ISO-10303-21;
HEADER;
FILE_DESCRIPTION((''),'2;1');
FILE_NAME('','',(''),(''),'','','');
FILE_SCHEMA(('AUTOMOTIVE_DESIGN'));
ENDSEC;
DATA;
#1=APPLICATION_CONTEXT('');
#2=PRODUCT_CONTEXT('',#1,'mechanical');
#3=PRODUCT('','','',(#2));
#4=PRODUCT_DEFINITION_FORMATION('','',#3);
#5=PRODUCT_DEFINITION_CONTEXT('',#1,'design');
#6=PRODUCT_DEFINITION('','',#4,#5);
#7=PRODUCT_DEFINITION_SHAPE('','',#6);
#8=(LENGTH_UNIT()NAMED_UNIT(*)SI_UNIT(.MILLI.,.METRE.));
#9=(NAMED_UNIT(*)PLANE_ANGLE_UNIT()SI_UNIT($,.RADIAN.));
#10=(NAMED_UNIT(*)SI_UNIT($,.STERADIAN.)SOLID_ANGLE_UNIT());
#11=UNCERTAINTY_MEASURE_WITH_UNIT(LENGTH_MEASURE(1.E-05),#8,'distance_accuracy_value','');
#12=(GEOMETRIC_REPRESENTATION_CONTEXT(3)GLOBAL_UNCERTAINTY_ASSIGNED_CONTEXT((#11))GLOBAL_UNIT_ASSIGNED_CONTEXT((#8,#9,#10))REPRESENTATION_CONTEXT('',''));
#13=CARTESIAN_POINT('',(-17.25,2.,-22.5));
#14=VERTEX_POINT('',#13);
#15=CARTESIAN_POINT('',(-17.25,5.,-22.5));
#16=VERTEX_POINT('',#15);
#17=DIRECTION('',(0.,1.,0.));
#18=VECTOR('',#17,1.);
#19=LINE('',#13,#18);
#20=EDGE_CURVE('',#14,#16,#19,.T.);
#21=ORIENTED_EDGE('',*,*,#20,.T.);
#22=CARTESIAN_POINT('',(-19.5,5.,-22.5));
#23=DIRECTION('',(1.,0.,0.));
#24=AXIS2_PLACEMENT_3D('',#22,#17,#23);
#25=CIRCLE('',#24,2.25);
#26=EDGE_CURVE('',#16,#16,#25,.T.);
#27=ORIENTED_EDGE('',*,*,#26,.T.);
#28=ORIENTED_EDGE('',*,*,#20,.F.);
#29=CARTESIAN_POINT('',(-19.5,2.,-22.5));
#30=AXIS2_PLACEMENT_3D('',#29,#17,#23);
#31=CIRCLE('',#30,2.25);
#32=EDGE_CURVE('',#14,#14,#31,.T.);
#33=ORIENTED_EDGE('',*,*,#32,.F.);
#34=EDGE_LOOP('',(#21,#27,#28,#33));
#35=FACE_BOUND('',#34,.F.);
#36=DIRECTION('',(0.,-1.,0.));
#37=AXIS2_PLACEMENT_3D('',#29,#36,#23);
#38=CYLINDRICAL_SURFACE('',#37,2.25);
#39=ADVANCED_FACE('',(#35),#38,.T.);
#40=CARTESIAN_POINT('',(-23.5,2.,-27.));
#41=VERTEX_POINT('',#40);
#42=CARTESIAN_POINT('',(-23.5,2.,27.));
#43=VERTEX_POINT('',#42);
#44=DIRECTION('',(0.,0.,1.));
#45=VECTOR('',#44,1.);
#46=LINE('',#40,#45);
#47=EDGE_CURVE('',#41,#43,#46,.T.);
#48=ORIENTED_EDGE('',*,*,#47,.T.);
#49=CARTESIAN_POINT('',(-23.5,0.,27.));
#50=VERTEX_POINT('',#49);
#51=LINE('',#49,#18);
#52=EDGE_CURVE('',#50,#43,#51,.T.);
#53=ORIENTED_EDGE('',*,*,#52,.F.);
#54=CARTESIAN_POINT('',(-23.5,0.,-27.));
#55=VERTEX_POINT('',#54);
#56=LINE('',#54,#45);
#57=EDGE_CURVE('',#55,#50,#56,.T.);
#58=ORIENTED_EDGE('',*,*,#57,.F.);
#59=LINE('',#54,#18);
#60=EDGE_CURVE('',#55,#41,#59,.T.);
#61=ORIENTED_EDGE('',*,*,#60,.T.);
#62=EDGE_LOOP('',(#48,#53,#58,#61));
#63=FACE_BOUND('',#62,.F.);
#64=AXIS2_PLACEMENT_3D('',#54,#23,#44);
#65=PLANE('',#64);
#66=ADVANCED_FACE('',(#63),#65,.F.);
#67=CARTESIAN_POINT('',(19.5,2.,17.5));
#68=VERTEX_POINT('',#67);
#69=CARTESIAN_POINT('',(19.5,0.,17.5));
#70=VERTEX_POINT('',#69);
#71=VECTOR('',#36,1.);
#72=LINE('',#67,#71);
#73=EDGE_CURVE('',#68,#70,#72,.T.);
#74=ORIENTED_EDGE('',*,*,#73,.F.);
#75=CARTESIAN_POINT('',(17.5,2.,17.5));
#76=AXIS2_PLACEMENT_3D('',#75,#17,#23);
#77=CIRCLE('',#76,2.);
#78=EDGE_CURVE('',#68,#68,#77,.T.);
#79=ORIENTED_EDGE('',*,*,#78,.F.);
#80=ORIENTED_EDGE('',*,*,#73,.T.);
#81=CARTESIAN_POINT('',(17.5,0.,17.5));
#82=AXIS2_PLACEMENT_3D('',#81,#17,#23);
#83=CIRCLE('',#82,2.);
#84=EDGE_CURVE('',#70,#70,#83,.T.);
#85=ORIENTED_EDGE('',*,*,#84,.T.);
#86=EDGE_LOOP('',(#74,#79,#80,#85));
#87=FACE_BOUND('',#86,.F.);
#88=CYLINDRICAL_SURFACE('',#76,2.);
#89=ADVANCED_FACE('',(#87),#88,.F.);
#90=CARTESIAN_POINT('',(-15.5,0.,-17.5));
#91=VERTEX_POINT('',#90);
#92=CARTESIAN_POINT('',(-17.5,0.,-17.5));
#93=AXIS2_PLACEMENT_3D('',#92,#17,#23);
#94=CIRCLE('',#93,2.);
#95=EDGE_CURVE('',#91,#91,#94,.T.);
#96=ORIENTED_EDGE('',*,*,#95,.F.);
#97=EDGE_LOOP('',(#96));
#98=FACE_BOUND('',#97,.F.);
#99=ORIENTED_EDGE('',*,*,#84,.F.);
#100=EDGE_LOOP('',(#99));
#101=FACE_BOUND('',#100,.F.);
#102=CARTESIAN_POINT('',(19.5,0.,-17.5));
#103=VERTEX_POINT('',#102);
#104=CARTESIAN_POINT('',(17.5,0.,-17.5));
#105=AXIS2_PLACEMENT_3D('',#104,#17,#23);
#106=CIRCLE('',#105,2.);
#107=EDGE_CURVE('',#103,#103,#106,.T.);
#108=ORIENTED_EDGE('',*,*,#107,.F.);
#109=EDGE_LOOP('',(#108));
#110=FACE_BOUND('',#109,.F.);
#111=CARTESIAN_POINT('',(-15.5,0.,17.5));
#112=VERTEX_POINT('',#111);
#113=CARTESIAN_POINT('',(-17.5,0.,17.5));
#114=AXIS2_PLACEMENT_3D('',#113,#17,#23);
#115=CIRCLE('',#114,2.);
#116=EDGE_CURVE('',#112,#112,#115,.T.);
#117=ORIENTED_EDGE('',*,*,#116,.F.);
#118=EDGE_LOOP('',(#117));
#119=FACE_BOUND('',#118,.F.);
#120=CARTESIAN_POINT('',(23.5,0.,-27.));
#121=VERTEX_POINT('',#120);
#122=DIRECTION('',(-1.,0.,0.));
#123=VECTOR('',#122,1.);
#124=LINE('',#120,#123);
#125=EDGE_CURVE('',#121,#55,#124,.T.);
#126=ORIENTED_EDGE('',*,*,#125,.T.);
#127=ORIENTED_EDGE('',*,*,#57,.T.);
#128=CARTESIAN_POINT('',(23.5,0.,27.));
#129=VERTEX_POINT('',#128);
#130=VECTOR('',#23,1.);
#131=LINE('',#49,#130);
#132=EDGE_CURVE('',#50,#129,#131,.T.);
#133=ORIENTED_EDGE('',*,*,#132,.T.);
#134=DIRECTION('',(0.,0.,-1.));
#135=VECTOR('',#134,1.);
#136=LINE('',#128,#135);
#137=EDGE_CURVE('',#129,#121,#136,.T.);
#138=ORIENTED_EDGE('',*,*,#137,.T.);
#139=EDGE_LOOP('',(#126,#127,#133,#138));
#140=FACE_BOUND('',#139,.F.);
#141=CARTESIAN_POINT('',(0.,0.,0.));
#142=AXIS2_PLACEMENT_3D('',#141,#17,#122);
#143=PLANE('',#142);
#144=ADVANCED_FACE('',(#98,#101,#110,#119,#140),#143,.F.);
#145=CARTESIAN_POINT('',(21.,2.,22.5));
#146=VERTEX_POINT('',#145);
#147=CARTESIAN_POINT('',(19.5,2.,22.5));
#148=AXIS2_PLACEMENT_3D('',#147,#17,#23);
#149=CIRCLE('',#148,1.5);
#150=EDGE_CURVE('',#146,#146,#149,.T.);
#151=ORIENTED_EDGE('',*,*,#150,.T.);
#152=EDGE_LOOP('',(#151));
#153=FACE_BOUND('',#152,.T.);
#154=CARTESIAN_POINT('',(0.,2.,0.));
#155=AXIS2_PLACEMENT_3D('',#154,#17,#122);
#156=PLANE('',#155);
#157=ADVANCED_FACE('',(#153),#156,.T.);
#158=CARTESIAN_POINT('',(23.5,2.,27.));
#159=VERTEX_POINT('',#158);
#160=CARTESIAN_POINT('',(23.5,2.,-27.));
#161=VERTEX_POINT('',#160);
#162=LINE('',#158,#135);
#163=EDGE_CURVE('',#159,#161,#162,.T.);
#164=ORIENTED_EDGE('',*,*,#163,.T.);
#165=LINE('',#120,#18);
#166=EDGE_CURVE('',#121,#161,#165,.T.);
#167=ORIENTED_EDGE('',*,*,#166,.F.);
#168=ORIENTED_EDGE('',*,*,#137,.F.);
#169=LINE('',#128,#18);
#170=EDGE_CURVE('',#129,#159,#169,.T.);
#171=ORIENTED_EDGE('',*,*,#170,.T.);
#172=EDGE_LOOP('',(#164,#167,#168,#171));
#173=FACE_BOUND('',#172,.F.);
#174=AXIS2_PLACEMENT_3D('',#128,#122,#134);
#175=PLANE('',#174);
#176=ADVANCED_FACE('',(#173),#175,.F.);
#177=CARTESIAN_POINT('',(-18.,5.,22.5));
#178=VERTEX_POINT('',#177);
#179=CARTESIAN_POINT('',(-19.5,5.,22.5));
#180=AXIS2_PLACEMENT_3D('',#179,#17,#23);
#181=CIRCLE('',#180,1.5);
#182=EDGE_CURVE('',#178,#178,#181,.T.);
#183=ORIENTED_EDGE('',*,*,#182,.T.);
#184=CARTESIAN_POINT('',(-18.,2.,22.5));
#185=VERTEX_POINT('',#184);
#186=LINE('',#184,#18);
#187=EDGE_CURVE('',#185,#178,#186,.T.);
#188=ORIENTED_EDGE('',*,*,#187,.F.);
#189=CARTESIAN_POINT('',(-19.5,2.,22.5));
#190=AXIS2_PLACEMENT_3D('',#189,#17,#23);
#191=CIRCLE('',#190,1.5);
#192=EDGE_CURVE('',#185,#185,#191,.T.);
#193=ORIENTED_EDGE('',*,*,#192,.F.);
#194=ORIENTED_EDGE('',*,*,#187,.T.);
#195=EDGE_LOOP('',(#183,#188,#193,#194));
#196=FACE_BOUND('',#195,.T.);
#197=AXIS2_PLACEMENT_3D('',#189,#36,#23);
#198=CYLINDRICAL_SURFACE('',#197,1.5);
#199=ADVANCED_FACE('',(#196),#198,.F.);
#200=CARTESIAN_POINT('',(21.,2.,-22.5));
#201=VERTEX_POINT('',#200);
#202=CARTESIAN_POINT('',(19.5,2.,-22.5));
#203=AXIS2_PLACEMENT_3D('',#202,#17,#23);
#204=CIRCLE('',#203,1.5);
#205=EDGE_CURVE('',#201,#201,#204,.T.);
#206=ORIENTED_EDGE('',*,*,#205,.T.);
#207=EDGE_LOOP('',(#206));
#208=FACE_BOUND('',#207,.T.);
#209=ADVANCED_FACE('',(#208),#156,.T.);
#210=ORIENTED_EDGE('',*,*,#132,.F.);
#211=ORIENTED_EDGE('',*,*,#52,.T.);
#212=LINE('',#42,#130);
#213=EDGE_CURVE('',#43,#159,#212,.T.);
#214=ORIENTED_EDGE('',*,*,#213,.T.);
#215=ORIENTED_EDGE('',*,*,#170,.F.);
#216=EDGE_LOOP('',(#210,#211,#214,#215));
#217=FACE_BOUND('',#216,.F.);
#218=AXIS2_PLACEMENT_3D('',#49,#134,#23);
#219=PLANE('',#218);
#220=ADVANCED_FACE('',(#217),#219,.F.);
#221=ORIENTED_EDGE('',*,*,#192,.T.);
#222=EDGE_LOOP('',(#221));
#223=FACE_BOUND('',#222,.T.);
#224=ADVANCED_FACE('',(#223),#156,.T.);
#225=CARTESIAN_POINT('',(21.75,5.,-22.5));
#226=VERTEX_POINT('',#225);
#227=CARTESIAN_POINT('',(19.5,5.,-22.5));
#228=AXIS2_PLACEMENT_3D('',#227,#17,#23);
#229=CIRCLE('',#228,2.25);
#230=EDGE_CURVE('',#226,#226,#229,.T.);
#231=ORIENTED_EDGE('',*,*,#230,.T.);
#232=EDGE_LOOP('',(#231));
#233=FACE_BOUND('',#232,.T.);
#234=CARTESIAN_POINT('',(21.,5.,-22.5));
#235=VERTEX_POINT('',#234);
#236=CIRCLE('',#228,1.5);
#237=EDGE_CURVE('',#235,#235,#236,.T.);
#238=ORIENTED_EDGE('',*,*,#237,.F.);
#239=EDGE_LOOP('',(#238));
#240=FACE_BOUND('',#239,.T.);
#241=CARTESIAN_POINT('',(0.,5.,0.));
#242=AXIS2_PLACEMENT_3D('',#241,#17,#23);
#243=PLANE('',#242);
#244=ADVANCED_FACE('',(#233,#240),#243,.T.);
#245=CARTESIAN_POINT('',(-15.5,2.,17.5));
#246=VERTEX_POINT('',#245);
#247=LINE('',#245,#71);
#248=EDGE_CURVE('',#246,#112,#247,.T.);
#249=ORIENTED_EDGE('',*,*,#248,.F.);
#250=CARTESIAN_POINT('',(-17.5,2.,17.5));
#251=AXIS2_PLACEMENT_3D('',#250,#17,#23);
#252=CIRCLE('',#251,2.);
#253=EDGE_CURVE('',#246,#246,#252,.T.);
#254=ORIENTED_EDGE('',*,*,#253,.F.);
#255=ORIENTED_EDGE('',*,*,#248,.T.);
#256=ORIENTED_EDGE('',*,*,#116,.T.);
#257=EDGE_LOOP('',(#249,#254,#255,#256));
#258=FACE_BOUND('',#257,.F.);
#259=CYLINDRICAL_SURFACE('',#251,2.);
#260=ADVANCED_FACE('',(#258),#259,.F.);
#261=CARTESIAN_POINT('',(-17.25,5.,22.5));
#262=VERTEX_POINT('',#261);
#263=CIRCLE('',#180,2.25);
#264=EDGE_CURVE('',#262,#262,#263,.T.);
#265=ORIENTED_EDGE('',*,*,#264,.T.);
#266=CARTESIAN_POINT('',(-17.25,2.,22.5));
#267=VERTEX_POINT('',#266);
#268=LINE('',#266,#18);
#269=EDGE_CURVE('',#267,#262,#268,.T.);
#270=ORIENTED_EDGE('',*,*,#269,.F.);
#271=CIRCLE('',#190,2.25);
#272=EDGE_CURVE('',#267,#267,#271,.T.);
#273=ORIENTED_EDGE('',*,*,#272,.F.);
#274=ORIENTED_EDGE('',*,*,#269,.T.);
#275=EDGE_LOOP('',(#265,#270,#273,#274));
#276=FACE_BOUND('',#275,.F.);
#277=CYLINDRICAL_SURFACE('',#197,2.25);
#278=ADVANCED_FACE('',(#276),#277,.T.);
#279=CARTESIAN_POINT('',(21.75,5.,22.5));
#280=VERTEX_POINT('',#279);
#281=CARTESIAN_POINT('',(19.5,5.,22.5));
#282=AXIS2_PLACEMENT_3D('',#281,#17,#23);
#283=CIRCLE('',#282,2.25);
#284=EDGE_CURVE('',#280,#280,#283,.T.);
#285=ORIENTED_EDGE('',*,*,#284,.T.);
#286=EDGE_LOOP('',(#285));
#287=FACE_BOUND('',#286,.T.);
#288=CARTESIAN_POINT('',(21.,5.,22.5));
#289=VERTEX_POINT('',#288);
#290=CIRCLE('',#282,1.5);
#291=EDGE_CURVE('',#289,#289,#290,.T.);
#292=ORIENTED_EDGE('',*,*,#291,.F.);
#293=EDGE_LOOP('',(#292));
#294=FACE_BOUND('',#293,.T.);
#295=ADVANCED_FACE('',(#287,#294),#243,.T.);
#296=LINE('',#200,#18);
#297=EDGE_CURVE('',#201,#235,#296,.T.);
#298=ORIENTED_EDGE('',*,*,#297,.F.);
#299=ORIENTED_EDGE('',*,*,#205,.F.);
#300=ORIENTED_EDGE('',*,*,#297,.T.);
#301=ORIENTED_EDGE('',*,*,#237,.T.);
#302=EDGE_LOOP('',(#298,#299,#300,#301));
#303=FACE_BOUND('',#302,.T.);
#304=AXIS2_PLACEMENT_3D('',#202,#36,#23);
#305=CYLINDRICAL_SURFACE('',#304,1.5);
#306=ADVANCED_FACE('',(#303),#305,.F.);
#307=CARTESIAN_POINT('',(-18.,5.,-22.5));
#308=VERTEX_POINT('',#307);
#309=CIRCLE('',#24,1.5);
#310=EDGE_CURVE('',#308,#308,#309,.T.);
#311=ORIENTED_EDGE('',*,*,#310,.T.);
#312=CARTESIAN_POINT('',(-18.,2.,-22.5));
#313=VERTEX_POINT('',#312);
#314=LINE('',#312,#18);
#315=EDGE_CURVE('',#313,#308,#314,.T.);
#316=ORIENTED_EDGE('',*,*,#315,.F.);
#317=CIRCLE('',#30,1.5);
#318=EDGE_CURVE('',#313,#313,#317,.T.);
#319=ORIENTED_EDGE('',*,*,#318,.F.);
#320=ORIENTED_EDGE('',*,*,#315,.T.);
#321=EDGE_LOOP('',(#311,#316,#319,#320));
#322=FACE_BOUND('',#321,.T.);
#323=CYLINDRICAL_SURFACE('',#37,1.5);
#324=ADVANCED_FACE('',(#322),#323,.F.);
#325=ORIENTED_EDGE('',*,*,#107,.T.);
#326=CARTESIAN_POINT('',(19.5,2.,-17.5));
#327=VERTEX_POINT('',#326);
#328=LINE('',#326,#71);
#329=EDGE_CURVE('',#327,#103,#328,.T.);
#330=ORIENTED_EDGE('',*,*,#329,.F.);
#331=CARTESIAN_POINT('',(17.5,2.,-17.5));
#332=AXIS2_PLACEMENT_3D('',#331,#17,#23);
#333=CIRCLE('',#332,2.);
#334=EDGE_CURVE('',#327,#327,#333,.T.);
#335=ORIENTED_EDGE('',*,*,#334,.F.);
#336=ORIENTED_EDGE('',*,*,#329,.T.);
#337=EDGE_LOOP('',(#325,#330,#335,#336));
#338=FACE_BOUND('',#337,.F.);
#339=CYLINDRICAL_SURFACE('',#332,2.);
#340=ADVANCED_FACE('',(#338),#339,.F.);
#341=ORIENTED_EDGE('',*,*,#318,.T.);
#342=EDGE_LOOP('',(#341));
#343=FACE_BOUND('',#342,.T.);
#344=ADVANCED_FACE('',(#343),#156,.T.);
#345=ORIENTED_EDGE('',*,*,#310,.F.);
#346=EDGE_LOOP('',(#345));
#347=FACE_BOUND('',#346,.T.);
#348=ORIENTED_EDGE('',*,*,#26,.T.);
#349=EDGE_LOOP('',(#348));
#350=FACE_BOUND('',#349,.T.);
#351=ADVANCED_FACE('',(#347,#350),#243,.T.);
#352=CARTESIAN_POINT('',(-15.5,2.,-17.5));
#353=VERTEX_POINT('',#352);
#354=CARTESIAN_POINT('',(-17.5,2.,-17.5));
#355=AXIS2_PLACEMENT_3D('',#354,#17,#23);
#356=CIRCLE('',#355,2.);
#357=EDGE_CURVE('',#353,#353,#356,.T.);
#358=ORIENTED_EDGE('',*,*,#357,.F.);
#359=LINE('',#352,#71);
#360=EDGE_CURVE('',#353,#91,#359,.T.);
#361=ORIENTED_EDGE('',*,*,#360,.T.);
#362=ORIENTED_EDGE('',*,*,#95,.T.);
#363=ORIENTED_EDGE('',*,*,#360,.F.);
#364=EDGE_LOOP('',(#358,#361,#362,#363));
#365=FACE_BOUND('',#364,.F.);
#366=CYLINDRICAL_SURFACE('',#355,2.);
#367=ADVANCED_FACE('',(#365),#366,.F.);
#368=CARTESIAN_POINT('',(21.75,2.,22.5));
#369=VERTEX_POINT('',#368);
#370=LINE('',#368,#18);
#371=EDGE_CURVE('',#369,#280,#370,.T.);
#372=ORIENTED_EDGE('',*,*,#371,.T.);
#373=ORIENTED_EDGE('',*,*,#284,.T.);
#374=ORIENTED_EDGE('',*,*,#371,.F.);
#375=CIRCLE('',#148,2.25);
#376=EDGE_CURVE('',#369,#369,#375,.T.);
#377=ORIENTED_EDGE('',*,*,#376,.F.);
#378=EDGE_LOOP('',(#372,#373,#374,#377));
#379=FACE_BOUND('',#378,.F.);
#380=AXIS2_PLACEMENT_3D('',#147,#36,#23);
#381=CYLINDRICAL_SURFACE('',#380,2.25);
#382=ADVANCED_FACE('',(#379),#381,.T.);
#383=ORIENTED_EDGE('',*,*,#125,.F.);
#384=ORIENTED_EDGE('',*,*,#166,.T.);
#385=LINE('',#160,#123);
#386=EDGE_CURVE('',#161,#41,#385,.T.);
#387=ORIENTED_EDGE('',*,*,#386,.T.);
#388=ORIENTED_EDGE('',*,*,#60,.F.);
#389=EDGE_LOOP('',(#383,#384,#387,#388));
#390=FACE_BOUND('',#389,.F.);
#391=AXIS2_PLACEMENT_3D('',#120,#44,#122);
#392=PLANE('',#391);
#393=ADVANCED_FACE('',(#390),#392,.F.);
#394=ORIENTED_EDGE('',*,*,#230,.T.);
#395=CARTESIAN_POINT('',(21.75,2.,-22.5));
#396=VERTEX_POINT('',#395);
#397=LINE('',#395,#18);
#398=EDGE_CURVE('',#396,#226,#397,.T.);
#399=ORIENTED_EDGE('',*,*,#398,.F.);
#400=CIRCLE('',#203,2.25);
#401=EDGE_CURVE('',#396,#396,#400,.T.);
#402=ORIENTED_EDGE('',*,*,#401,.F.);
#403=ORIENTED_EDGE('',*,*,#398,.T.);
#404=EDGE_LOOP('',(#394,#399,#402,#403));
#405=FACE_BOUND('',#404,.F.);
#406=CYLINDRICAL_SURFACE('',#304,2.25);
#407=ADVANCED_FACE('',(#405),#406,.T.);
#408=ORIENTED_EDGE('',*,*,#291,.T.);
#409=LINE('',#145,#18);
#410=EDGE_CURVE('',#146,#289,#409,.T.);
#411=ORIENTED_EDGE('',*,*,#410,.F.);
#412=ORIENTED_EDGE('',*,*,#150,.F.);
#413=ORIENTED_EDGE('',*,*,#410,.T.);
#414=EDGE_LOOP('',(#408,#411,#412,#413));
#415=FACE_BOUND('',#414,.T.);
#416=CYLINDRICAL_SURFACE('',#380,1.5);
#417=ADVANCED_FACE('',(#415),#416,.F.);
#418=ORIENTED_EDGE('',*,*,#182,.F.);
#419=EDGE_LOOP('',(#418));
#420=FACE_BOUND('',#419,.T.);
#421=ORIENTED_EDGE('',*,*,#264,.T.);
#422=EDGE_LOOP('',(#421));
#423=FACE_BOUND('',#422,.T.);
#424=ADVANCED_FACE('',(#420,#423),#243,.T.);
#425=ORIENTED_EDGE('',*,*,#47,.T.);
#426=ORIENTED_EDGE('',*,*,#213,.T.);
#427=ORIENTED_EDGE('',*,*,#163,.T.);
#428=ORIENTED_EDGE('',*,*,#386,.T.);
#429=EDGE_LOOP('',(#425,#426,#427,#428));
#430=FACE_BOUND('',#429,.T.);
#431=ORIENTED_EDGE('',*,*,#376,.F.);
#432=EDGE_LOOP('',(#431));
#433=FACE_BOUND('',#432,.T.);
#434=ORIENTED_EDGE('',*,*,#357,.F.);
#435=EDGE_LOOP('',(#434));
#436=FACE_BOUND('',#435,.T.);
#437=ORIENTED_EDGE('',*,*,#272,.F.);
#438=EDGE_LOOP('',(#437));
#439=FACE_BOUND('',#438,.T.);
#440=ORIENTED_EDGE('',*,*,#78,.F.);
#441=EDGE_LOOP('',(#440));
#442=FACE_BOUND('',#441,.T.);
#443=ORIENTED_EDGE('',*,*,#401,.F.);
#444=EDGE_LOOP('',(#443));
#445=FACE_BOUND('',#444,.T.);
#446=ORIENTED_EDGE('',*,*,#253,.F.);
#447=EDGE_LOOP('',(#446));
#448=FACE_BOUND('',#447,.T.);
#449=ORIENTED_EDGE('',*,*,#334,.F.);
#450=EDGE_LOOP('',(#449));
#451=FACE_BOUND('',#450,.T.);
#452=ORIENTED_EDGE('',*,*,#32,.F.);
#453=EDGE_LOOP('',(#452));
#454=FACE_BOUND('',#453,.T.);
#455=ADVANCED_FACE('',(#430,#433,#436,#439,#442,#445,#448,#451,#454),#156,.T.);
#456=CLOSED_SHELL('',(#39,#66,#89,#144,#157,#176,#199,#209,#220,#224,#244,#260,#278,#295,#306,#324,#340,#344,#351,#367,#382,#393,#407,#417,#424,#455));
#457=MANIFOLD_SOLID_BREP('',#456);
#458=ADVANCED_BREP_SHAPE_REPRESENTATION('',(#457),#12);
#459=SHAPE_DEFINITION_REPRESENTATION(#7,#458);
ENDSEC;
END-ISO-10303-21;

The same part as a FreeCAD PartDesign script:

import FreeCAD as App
import Part
import Sketcher
from FreeCAD import Vector
Q = App.Units.Quantity


def add_polygon(sketch, points):
    """Adds a closed chain of lines whose ends are joined by coincident constraints."""
    first, n = sketch.GeometryCount, len(points)
    for a, b in zip(points, points[1:] + points[:1]):
        sketch.addGeometry(Part.LineSegment(App.Vector(*a, 0), App.Vector(*b, 0)), False)
    for i in range(n):
        sketch.addConstraint(Sketcher.Constraint("Coincident", first + i, 2, first + (i + 1) % n, 1))

doc = App.newDocument("Part")
body = doc.addObject("PartDesign::Body", "Body")

# Sketch on XZ plane
sketch1 = doc.addObject("Sketcher::SketchObject", "Sketch")
body.addObject(sketch1)
sketch1.AttachmentSupport = (doc.XZ_Plane, [""])
sketch1.MapMode = "FlatFace"
add_polygon(sketch1, [(-24, -27), (-24, 27), (24, 27), (24, -27)])  # lines 0-3
sketch1.addConstraint([
    Sketcher.Constraint("Vertical", 0),
    Sketcher.Constraint("Horizontal", 1),
    Sketcher.Constraint("Vertical", 2),
    Sketcher.Constraint("Horizontal", 3),
    Sketcher.Constraint("Symmetric", 0, 2, 2, 2, -1, 1),
    Sketcher.Constraint("DistanceX", 1, 1, 1, 2, Q("47 mm")),
    Sketcher.Constraint("DistanceY", 0, 1, 0, 2, Q("54 mm")),
])
pad1 = doc.addObject("PartDesign::Pad", "Pad")
body.addObject(pad1)
pad1.Profile = sketch1
pad1.Length = 2
pad1.Reversed = True

# Sketch on XZ plane
sketch2 = doc.addObject("Sketcher::SketchObject", "Sketch001")
body.addObject(sketch2)
sketch2.AttachmentSupport = (doc.XZ_Plane, [""])
sketch2.MapMode = "FlatFace"
sketch2.AttachmentOffset = App.Placement(Vector(0, 0, -2), App.Rotation())
sketch2.addGeometry([
    Part.Circle(Vector(-19.5, -22.5, 0), Vector(0, 0, 1), 2.2),  # 0
    Part.Circle(Vector(-19.5, -22.5, 0), Vector(0, 0, 1), 1.5),  # 1
    Part.Circle(Vector(19.5, -22.5, 0), Vector(0, 0, 1), 2.2),  # 2
    Part.Circle(Vector(19.5, -22.5, 0), Vector(0, 0, 1), 1.5),  # 3
    Part.Circle(Vector(19.5, 22.5, 0), Vector(0, 0, 1), 2.2),  # 4
    Part.Circle(Vector(19.5, 22.5, 0), Vector(0, 0, 1), 1.5),  # 5
    Part.Circle(Vector(-19.5, 22.5, 0), Vector(0, 0, 1), 2.2),  # 6
    Part.Circle(Vector(-19.5, 22.5, 0), Vector(0, 0, 1), 1.5),  # 7
], False)
sketch2.addConstraint([
    Sketcher.Constraint("Coincident", 1, 3, 0, 3),
    Sketcher.Constraint("Coincident", 3, 3, 2, 3),
    Sketcher.Constraint("Coincident", 5, 3, 4, 3),
    Sketcher.Constraint("Coincident", 7, 3, 6, 3),
    Sketcher.Constraint("Equal", 0, 2),
    Sketcher.Constraint("Equal", 1, 3),
    Sketcher.Constraint("Equal", 2, 4),
    Sketcher.Constraint("Equal", 3, 5),
    Sketcher.Constraint("Equal", 4, 6),
    Sketcher.Constraint("Equal", 5, 7),
    Sketcher.Constraint("Symmetric", 0, 3, 4, 3, -1, 1),
    Sketcher.Constraint("Symmetric", 2, 3, 6, 3, -1, 1),
    Sketcher.Constraint("Symmetric", 0, 3, 2, 3, -2),
    Sketcher.Constraint("Diameter", 1, Q("3 mm")),
    Sketcher.Constraint("Diameter", 0, Q("4.5 mm")),
    Sketcher.Constraint("DistanceX", 0, 3, 2, 3, Q("39 mm")),
    Sketcher.Constraint("DistanceY", 2, 3, 4, 3, Q("45 mm")),
])
pad2 = doc.addObject("PartDesign::Pad", "Pad001")
body.addObject(pad2)
pad2.Profile = sketch2
pad2.Length = 3
pad2.Reversed = True

# Sketch on XZ plane
sketch3 = doc.addObject("Sketcher::SketchObject", "Sketch002")
body.addObject(sketch3)
sketch3.AttachmentSupport = (doc.XZ_Plane, [""])
sketch3.MapMode = "FlatFace"
sketch3.AttachmentOffset = App.Placement(Vector(0, 0, -2), App.Rotation())
sketch3.addGeometry([
    Part.Circle(Vector(-17.5, 17.5, 0), Vector(0, 0, 1), 2),
    Part.Circle(Vector(-17.5, -17.5, 0), Vector(0, 0, 1), 2),
    Part.Circle(Vector(17.5, -17.5, 0), Vector(0, 0, 1), 2),
    Part.Circle(Vector(17.5, 17.5, 0), Vector(0, 0, 1), 2),
], False)
sketch3.addConstraint([
    Sketcher.Constraint("Equal", 0, 1),
    Sketcher.Constraint("Equal", 1, 2),
    Sketcher.Constraint("Equal", 2, 3),
    Sketcher.Constraint("Symmetric", 0, 3, 2, 3, -1, 1),
    Sketcher.Constraint("Symmetric", 1, 3, 3, 3, -1, 1),
    Sketcher.Constraint("Symmetric", 1, 3, 2, 3, -2),
    Sketcher.Constraint("Diameter", 0, Q("4 mm")),
    Sketcher.Constraint("DistanceY", 1, 3, 0, 3, Q("35 mm")),
    Sketcher.Constraint("DistanceX", 1, 3, 2, 3, Q("35 mm")),
])
pocket1 = doc.addObject("PartDesign::Pocket", "Pocket")
body.addObject(pocket1)
pocket1.Profile = sketch3
pocket1.Type = "ThroughAll"
pocket1.Reversed = True

doc.recompute()
